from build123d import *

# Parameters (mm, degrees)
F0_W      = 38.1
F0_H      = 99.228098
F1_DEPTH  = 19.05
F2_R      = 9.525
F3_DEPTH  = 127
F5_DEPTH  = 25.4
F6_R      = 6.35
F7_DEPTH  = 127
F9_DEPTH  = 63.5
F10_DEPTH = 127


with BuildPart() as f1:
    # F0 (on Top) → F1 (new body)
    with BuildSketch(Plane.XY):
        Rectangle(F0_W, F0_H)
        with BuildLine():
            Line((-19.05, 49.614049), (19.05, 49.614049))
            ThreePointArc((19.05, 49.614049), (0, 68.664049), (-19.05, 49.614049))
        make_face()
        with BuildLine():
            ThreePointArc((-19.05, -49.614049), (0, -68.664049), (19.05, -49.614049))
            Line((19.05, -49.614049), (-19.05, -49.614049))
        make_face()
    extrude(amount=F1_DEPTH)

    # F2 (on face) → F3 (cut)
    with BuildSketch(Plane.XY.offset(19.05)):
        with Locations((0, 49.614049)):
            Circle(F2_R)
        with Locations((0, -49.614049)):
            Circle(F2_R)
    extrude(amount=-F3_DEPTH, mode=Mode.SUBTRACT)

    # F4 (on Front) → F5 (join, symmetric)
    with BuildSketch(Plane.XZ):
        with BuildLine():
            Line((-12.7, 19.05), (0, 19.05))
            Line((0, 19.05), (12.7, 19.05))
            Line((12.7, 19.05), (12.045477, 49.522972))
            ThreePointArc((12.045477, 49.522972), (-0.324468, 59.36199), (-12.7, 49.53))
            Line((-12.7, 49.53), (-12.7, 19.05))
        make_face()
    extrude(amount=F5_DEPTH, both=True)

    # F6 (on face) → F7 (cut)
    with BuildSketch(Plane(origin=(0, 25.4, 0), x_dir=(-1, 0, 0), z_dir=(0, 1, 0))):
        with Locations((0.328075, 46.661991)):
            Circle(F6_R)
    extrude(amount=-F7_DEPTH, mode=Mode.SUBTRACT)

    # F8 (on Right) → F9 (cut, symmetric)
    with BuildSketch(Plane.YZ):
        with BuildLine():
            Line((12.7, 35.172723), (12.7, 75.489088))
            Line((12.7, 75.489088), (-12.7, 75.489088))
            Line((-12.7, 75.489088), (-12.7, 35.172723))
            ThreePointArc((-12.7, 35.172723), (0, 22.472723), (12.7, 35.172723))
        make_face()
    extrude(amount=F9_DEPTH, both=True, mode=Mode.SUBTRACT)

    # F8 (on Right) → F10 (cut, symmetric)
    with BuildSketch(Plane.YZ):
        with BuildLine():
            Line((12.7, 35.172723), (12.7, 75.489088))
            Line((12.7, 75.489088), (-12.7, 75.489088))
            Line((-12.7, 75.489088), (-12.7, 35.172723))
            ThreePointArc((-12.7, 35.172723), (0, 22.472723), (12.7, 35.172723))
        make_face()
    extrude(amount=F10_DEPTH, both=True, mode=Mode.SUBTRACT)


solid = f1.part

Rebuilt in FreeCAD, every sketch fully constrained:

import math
import FreeCAD as App
import Part
import Sketcher
Q = App.Units.Quantity

doc = App.newDocument("Part")
body = doc.addObject("PartDesign::Body", "Body")

sketch1 = body.newObject("Sketcher::SketchObject", "Sketch")
sketch1.AttachmentSupport = (doc.getObject("XY_Plane"), [""])
sketch1.MapMode = "FlatFace"
sketch1.addGeometry(Part.LineSegment(App.Vector(-19, 50, 0), App.Vector(-19, -50, 0)), False)
sketch1.addGeometry(Part.ArcOfCircle(Part.Circle(App.Vector(0, -50, 0), App.Vector(0, 0, 1), 19), math.radians(180), math.radians(360)), False)
sketch1.addGeometry(Part.LineSegment(App.Vector(19, -50, 0), App.Vector(19, 50, 0)), False)
sketch1.addGeometry(Part.ArcOfCircle(Part.Circle(App.Vector(0, 50, 0), App.Vector(0, 0, 1), 19), math.radians(0), math.radians(180)), False)
sketch1.addConstraint(Sketcher.Constraint("Tangent", 0, 2, 1, 1))
sketch1.addConstraint(Sketcher.Constraint("Tangent", 1, 2, 2, 1))
sketch1.addConstraint(Sketcher.Constraint("Tangent", 2, 2, 3, 1))
sketch1.addConstraint(Sketcher.Constraint("Tangent", 3, 2, 0, 1))
sketch1.addConstraint(Sketcher.Constraint("Vertical", 0))
sketch1.addConstraint(Sketcher.Constraint("Vertical", 2))
sketch1.addConstraint(Sketcher.Constraint("Symmetric", 1, 3, 3, 3, -1, 1))
sketch1.addConstraint(Sketcher.Constraint("Radius", 1, Q("0.75 in")))
sketch1.addConstraint(Sketcher.Constraint("DistanceY", 0, 2, 0, 1, 99.228098))
pad1 = body.newObject("PartDesign::Pad", "Pad")
pad1.Profile = sketch1
pad1.Length = Q("0.75 in")

sketch2 = body.newObject("Sketcher::SketchObject", "Sketch001")
sketch2.AttachmentSupport = (doc.getObject("XY_Plane"), [""])
sketch2.MapMode = "FlatFace"
sketch2.AttachmentOffset = App.Placement(App.Vector(0, 0, 0.75 * 25.4), App.Rotation())
sketch2.addGeometry(Part.Circle(App.Vector(0, 50, 0), App.Vector(0, 0, 1), 10), False)
sketch2.addGeometry(Part.Circle(App.Vector(0, -50, 0), App.Vector(0, 0, 1), 10), False)
sketch2.addConstraint(Sketcher.Constraint("Equal", 0, 1))
sketch2.addConstraint(Sketcher.Constraint("Symmetric", 0, 3, 1, 3, -1, 1))
sketch2.addConstraint(Sketcher.Constraint("PointOnObject", 0, 3, -2))
sketch2.addConstraint(Sketcher.Constraint("Diameter", 0, Q("0.75 in")))
sketch2.addConstraint(Sketcher.Constraint("DistanceY", 1, 3, 0, 3, 99.228098))
pocket1 = body.newObject("PartDesign::Pocket", "Pocket")
pocket1.Profile = sketch2
pocket1.Length = Q("5 in")

sketch3 = body.newObject("Sketcher::SketchObject", "Sketch002")
sketch3.AttachmentSupport = (doc.getObject("XZ_Plane"), [""])
sketch3.MapMode = "FlatFace"
sketch3.addGeometry(Part.LineSegment(App.Vector(-13, 19, 0), App.Vector(13, 19, 0)), False)
sketch3.addGeometry(Part.LineSegment(App.Vector(13, 19, 0), App.Vector(12, 50, 0)), False)
sketch3.addGeometry(Part.ArcOfCircle(Part.Circle(App.Vector(0, 47, 0), App.Vector(0, 0, 1), 13), math.radians(13), math.radians(167)), False)
sketch3.addGeometry(Part.LineSegment(App.Vector(-13, 50, 0), App.Vector(-13, 19, 0)), False)
sketch3.addConstraint(Sketcher.Constraint("Coincident", 0, 2, 1, 1))
sketch3.addConstraint(Sketcher.Constraint("Coincident", 1, 2, 2, 1))
sketch3.addConstraint(Sketcher.Constraint("Coincident", 2, 2, 3, 1))
sketch3.addConstraint(Sketcher.Constraint("Coincident", 3, 2, 0, 1))
sketch3.addConstraint(Sketcher.Constraint("Horizontal", 0))
sketch3.addConstraint(Sketcher.Constraint("Vertical", 3))
sketch3.addConstraint(Sketcher.Constraint("Radius", 2, Q("0.5 in")))
sketch3.addConstraint(Sketcher.Constraint("DistanceX", 0, 1, 0, 2, Q("1 in")))
sketch3.addConstraint(Sketcher.Constraint("DistanceY", 3, 2, 3, 1, Q("1.2 in")))
sketch3.addConstraint(Sketcher.Constraint("Distance", 1, Q("1.2 in")))
sketch3.addConstraint(Sketcher.Constraint("DistanceX", -1, 1, 0, 2, Q("0.5 in")))
sketch3.addConstraint(Sketcher.Constraint("DistanceY", -1, 1, 0, 2, Q("0.75 in")))
sketch3.addConstraint(Sketcher.Constraint("DistanceY", -1, 1, 2, 3, 46.66199))
pad2 = body.newObject("PartDesign::Pad", "Pad001")
pad2.Profile = sketch3
pad2.Length = Q("2 in")
pad2.Midplane = True

sketch4 = body.newObject("Sketcher::SketchObject", "Sketch003")
sketch4.AttachmentSupport = (doc.getObject("XZ_Plane"), [""])
sketch4.MapMode = "FlatFace"
sketch4.AttachmentOffset = App.Placement(App.Vector(0, 0, -1 * 25.4), App.Rotation())
sketch4.addGeometry(Part.Circle(App.Vector(0, 47, 0), App.Vector(0, 0, 1), 6), False)
sketch4.addConstraint(Sketcher.Constraint("Diameter", 0, Q("0.5 in")))
sketch4.addConstraint(Sketcher.Constraint("DistanceY", -1, 1, 0, 3, 46.661991))
sketch4.addConstraint(Sketcher.Constraint("DistanceX", 0, 3, -1, 1, 0.328075))
pocket2 = body.newObject("PartDesign::Pocket", "Pocket001")
pocket2.Profile = sketch4
pocket2.Length = Q("5 in")
pocket2.Reversed = True

sketch5 = body.newObject("Sketcher::SketchObject", "Sketch004")
sketch5.AttachmentSupport = (doc.getObject("YZ_Plane"), [""])
sketch5.MapMode = "FlatFace"
sketch5.addGeometry(Part.LineSegment(App.Vector(13, 35, 0), App.Vector(13, 75, 0)), False)
sketch5.addGeometry(Part.LineSegment(App.Vector(13, 75, 0), App.Vector(-13, 75, 0)), False)
sketch5.addGeometry(Part.LineSegment(App.Vector(-13, 75, 0), App.Vector(-13, 35, 0)), False)
sketch5.addGeometry(Part.ArcOfCircle(Part.Circle(App.Vector(0, 35, 0), App.Vector(0, 0, 1), 13), math.radians(180), math.radians(360)), False)
sketch5.addConstraint(Sketcher.Constraint("Coincident", 0, 2, 1, 1))
sketch5.addConstraint(Sketcher.Constraint("Coincident", 1, 2, 2, 1))
sketch5.addConstraint(Sketcher.Constraint("Tangent", 2, 2, 3, 1))
sketch5.addConstraint(Sketcher.Constraint("Tangent", 3, 2, 0, 1))
sketch5.addConstraint(Sketcher.Constraint("Vertical", 0))
sketch5.addConstraint(Sketcher.Constraint("Horizontal", 1))
sketch5.addConstraint(Sketcher.Constraint("Vertical", 2))
sketch5.addConstraint(Sketcher.Constraint("PointOnObject", 3, 3, -2))
sketch5.addConstraint(Sketcher.Constraint("Radius", 3, Q("0.5 in")))
sketch5.addConstraint(Sketcher.Constraint("DistanceY", 0, 1, 0, 2, 40.316365))
sketch5.addConstraint(Sketcher.Constraint("DistanceY", -1, 1, 3, 3, 35.172723))
pocket3 = body.newObject("PartDesign::Pocket", "Pocket002")
pocket3.Profile = sketch5
pocket3.Length = Q("5 in")
pocket3.Midplane = True

sketch6 = body.newObject("Sketcher::SketchObject", "Sketch005")
sketch6.AttachmentSupport = (doc.getObject("YZ_Plane"), [""])
sketch6.MapMode = "FlatFace"
sketch6.addGeometry(Part.LineSegment(App.Vector(13, 35, 0), App.Vector(13, 75, 0)), False)
sketch6.addGeometry(Part.LineSegment(App.Vector(13, 75, 0), App.Vector(-13, 75, 0)), False)
sketch6.addGeometry(Part.LineSegment(App.Vector(-13, 75, 0), App.Vector(-13, 35, 0)), False)
sketch6.addGeometry(Part.ArcOfCircle(Part.Circle(App.Vector(0, 35, 0), App.Vector(0, 0, 1), 13), math.radians(180), math.radians(360)), False)
sketch6.addConstraint(Sketcher.Constraint("Coincident", 0, 2, 1, 1))
sketch6.addConstraint(Sketcher.Constraint("Coincident", 1, 2, 2, 1))
sketch6.addConstraint(Sketcher.Constraint("Tangent", 2, 2, 3, 1))
sketch6.addConstraint(Sketcher.Constraint("Tangent", 3, 2, 0, 1))
sketch6.addConstraint(Sketcher.Constraint("Vertical", 0))
sketch6.addConstraint(Sketcher.Constraint("Horizontal", 1))
sketch6.addConstraint(Sketcher.Constraint("Vertical", 2))
sketch6.addConstraint(Sketcher.Constraint("PointOnObject", 3, 3, -2))
sketch6.addConstraint(Sketcher.Constraint("Radius", 3, Q("0.5 in")))
sketch6.addConstraint(Sketcher.Constraint("DistanceY", 0, 1, 0, 2, 40.316365))
sketch6.addConstraint(Sketcher.Constraint("DistanceY", -1, 1, 3, 3, 35.172723))
pocket4 = body.newObject("PartDesign::Pocket", "Pocket003")
pocket4.Profile = sketch6
pocket4.Length = Q("10 in")
pocket4.Midplane = True

doc.recompute()
